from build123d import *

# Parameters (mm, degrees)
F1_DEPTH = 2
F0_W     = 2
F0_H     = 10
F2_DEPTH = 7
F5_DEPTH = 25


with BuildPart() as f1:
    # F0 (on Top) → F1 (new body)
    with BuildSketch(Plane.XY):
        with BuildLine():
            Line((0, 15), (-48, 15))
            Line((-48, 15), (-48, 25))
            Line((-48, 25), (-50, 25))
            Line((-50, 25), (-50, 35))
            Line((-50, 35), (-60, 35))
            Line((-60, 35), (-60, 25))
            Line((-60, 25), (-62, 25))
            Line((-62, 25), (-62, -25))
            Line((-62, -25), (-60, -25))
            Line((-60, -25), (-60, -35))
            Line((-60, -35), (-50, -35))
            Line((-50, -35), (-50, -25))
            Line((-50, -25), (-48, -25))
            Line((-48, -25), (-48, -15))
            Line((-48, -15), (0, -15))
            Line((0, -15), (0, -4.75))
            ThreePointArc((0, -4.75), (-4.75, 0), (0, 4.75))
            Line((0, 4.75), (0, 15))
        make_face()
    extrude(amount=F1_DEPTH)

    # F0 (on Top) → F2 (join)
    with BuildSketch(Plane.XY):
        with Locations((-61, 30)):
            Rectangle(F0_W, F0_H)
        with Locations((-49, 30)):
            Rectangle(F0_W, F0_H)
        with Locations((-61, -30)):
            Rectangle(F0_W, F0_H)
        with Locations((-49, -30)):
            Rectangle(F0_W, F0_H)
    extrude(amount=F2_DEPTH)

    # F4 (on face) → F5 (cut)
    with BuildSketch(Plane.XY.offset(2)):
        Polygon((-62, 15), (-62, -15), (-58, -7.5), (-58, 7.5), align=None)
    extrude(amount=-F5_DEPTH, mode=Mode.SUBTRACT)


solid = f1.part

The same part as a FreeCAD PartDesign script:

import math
import FreeCAD as App
import Part
import Sketcher

V = App.Vector
Q = App.Units.Quantity

doc = App.newDocument("Part")
body = doc.addObject("PartDesign::Body", "Body")

# Sketch on XY plane
sketch1 = doc.addObject("Sketcher::SketchObject", "Sketch")
body.addObject(sketch1)
sketch1.AttachmentSupport = (doc.XY_Plane, [""])
sketch1.MapMode = "FlatFace"
sketch1.addGeometry([
    Part.LineSegment(V(0, 15, 0), V(-48, 15, 0)),  # 0
    Part.LineSegment(V(-48, 15, 0), V(-48, 25, 0)),  # 1
    Part.LineSegment(V(-48, 25, 0), V(-50, 25, 0)),  # 2
    Part.LineSegment(V(-50, 25, 0), V(-50, 35, 0)),  # 3
    Part.LineSegment(V(-50, 35, 0), V(-60, 35, 0)),  # 4
    Part.LineSegment(V(-60, 35, 0), V(-60, 25, 0)),  # 5
    Part.LineSegment(V(-60, 25, 0), V(-62, 25, 0)),  # 6
    Part.LineSegment(V(-62, 25, 0), V(-62, -25, 0)),  # 7
    Part.LineSegment(V(-62, -25, 0), V(-60, -25, 0)),  # 8
    Part.LineSegment(V(-60, -25, 0), V(-60, -35, 0)),  # 9
    Part.LineSegment(V(-60, -35, 0), V(-50, -35, 0)),  # 10
    Part.LineSegment(V(-50, -35, 0), V(-50, -25, 0)),  # 11
    Part.LineSegment(V(-50, -25, 0), V(-48, -25, 0)),  # 12
    Part.LineSegment(V(-48, -25, 0), V(-48, -15, 0)),  # 13
    Part.LineSegment(V(-48, -15, 0), V(0, -15, 0)),  # 14
    Part.LineSegment(V(0, -15, 0), V(0, -4.8, 0)),  # 15
    Part.ArcOfCircle(Part.Circle(V(0, 0, 0), V(0, 0, 1), 4.8), math.radians(90), math.radians(270)),  # 16
    Part.LineSegment(V(0, 4.8, 0), V(0, 15, 0)),  # 17
], False)
sketch1.addConstraint([
    Sketcher.Constraint("Coincident", 0, 2, 1, 1),
    Sketcher.Constraint("Coincident", 1, 2, 2, 1),
    Sketcher.Constraint("Coincident", 2, 2, 3, 1),
    Sketcher.Constraint("Coincident", 3, 2, 4, 1),
    Sketcher.Constraint("Coincident", 4, 2, 5, 1),
    Sketcher.Constraint("Coincident", 5, 2, 6, 1),
    Sketcher.Constraint("Coincident", 6, 2, 7, 1),
    Sketcher.Constraint("Coincident", 7, 2, 8, 1),
    Sketcher.Constraint("Coincident", 8, 2, 9, 1),
    Sketcher.Constraint("Coincident", 9, 2, 10, 1),
    Sketcher.Constraint("Coincident", 10, 2, 11, 1),
    Sketcher.Constraint("Coincident", 11, 2, 12, 1),
    Sketcher.Constraint("Coincident", 12, 2, 13, 1),
    Sketcher.Constraint("Coincident", 13, 2, 14, 1),
    Sketcher.Constraint("Coincident", 14, 2, 15, 1),
    Sketcher.Constraint("Coincident", 15, 2, 16, 2),
    Sketcher.Constraint("Coincident", 16, 1, 17, 1),
    Sketcher.Constraint("Coincident", 17, 2, 0, 1),
    Sketcher.Constraint("Horizontal", 0),
    Sketcher.Constraint("Vertical", 1),
    Sketcher.Constraint("Horizontal", 2),
    Sketcher.Constraint("Vertical", 3),
    Sketcher.Constraint("Horizontal", 4),
    Sketcher.Constraint("Vertical", 5),
    Sketcher.Constraint("Horizontal", 6),
    Sketcher.Constraint("Vertical", 7),
    Sketcher.Constraint("Horizontal", 8),
    Sketcher.Constraint("Vertical", 9),
    Sketcher.Constraint("Horizontal", 10),
    Sketcher.Constraint("Vertical", 11),
    Sketcher.Constraint("Horizontal", 12),
    Sketcher.Constraint("Vertical", 13),
    Sketcher.Constraint("Horizontal", 14),
    Sketcher.Constraint("Vertical", 15),
    Sketcher.Constraint("Vertical", 17),
    Sketcher.Constraint("Coincident", 16, 3, -1, 1),
    Sketcher.Constraint("Symmetric", 14, 2, 17, 2, -1, 1),
    Sketcher.Constraint("Symmetric", 5, 2, 8, 2, -1),
    Sketcher.Constraint("Symmetric", 3, 2, 10, 2, -1),
    Sketcher.Constraint("Symmetric", 1, 2, 12, 2, -1),
    Sketcher.Constraint("PointOnObject", 14, 2, -2),
    Sketcher.Constraint("Horizontal", 2, 2, 5, 2),
    Sketcher.Constraint("Equal", 2, 6),
    Sketcher.Constraint("Equal", 10, 1),
    Sketcher.Constraint("Equal", 1, 3),
    Sketcher.Constraint("DistanceX", 0, 2, 0, 1, Q("48 mm")),
    Sketcher.Constraint("DistanceX", 2, 2, 2, 1, Q("2 mm")),
    Sketcher.Constraint("DistanceX", 4, 2, 4, 1, Q("10 mm")),
    Sketcher.Constraint("DistanceY", 7, 2, 7, 1, Q("50 mm")),
    Sketcher.Constraint("Radius", 16, Q("4.75 mm")),
])
pad1 = doc.addObject("PartDesign::Pad", "Pad")
body.addObject(pad1)
pad1.Profile = sketch1
pad1.Length = 2

# Sketch on XY plane
sketch2 = doc.addObject("Sketcher::SketchObject", "Sketch001")
body.addObject(sketch2)
sketch2.AttachmentSupport = (doc.XY_Plane, [""])
sketch2.MapMode = "FlatFace"
sketch2.addGeometry([
    Part.LineSegment(V(-62, 35, 0), V(-62, 25, 0)),  # 0
    Part.LineSegment(V(-62, 25, 0), V(-60, 25, 0)),  # 1
    Part.LineSegment(V(-60, 25, 0), V(-60, 35, 0)),  # 2
    Part.LineSegment(V(-60, 35, 0), V(-62, 35, 0)),  # 3
    Part.LineSegment(V(-50, 35, 0), V(-50, 25, 0)),  # 4
    Part.LineSegment(V(-50, 25, 0), V(-48, 25, 0)),  # 5
    Part.LineSegment(V(-48, 25, 0), V(-48, 35, 0)),  # 6
    Part.LineSegment(V(-48, 35, 0), V(-50, 35, 0)),  # 7
    Part.LineSegment(V(-62, -25, 0), V(-62, -35, 0)),  # 8
    Part.LineSegment(V(-62, -35, 0), V(-60, -35, 0)),  # 9
    Part.LineSegment(V(-60, -35, 0), V(-60, -25, 0)),  # 10
    Part.LineSegment(V(-60, -25, 0), V(-62, -25, 0)),  # 11
    Part.LineSegment(V(-50, -25, 0), V(-50, -35, 0)),  # 12
    Part.LineSegment(V(-50, -35, 0), V(-48, -35, 0)),  # 13
    Part.LineSegment(V(-48, -35, 0), V(-48, -25, 0)),  # 14
    Part.LineSegment(V(-48, -25, 0), V(-50, -25, 0)),  # 15
], False)
sketch2.addConstraint([
    Sketcher.Constraint("Coincident", 0, 2, 1, 1),
    Sketcher.Constraint("Coincident", 1, 2, 2, 1),
    Sketcher.Constraint("Coincident", 2, 2, 3, 1),
    Sketcher.Constraint("Coincident", 3, 2, 0, 1),
    Sketcher.Constraint("Coincident", 4, 2, 5, 1),
    Sketcher.Constraint("Coincident", 5, 2, 6, 1),
    Sketcher.Constraint("Coincident", 6, 2, 7, 1),
    Sketcher.Constraint("Coincident", 7, 2, 4, 1),
    Sketcher.Constraint("Coincident", 8, 2, 9, 1),
    Sketcher.Constraint("Coincident", 9, 2, 10, 1),
    Sketcher.Constraint("Coincident", 10, 2, 11, 1),
    Sketcher.Constraint("Coincident", 11, 2, 8, 1),
    Sketcher.Constraint("Coincident", 12, 2, 13, 1),
    Sketcher.Constraint("Coincident", 13, 2, 14, 1),
    Sketcher.Constraint("Coincident", 14, 2, 15, 1),
    Sketcher.Constraint("Coincident", 15, 2, 12, 1),
    Sketcher.Constraint("Vertical", 0),
    Sketcher.Constraint("Horizontal", 1),
    Sketcher.Constraint("Vertical", 2),
    Sketcher.Constraint("Horizontal", 3),
    Sketcher.Constraint("Vertical", 4),
    Sketcher.Constraint("Horizontal", 5),
    Sketcher.Constraint("Vertical", 6),
    Sketcher.Constraint("Horizontal", 7),
    Sketcher.Constraint("Vertical", 8),
    Sketcher.Constraint("Horizontal", 9),
    Sketcher.Constraint("Vertical", 10),
    Sketcher.Constraint("Horizontal", 11),
    Sketcher.Constraint("Vertical", 12),
    Sketcher.Constraint("Horizontal", 13),
    Sketcher.Constraint("Vertical", 14),
    Sketcher.Constraint("Horizontal", 15),
    Sketcher.Constraint("Symmetric", 3, 2, 8, 2, -1),
    Sketcher.Constraint("Symmetric", 1, 2, 10, 2, -1),
    Sketcher.Constraint("Symmetric", 7, 2, 12, 2, -1),
    Sketcher.Constraint("Symmetric", 5, 2, 14, 2, -1),
    Sketcher.Constraint("Horizontal", 1, 2, 4, 2),
    Sketcher.Constraint("Horizontal", 3, 2, 6, 2),
    Sketcher.Constraint("Equal", 3, 5),
    Sketcher.Constraint("DistanceX", 1, 1, 1, 2, Q("2 mm")),
    Sketcher.Constraint("DistanceY", 0, 2, 0, 1, Q("10 mm")),
    Sketcher.Constraint("DistanceX", 0, 2, -1, 1, Q("62 mm")),
    Sketcher.Constraint("DistanceY", -1, 1, 0, 2, Q("25 mm")),
    Sketcher.Constraint("DistanceX", 4, 2, -1, 1, Q("50 mm")),
])
pad2 = doc.addObject("PartDesign::Pad", "Pad001")
body.addObject(pad2)
pad2.Profile = sketch2
pad2.Length = 7

# Sketch on XY plane
sketch3 = doc.addObject("Sketcher::SketchObject", "Sketch002")
body.addObject(sketch3)
sketch3.AttachmentSupport = (doc.XY_Plane, [""])
sketch3.MapMode = "FlatFace"
sketch3.AttachmentOffset = App.Placement(V(0, 0, 2), App.Rotation())
sketch3.addGeometry([
    Part.LineSegment(V(-62, 15, 0), V(-62, -15, 0)),
    Part.LineSegment(V(-62, -15, 0), V(-58, -8, 0)),
    Part.LineSegment(V(-58, -8, 0), V(-58, 8, 0)),
    Part.LineSegment(V(-58, 8, 0), V(-62, 15, 0)),
], False)
sketch3.addConstraint([
    Sketcher.Constraint("Coincident", 0, 2, 1, 1),
    Sketcher.Constraint("Coincident", 1, 2, 2, 1),
    Sketcher.Constraint("Coincident", 2, 2, 3, 1),
    Sketcher.Constraint("Coincident", 3, 2, 0, 1),
    Sketcher.Constraint("Vertical", 0),
    Sketcher.Constraint("Vertical", 2),
    Sketcher.Constraint("Equal", 1, 3),
    Sketcher.Constraint("DistanceY", 0, 2, 0, 1, Q("30 mm")),
    Sketcher.Constraint("DistanceY", 2, 1, 2, 2, Q("15 mm")),
    Sketcher.Constraint("DistanceX", 0, 2, -1, 1, Q("62 mm")),
    Sketcher.Constraint("DistanceY", 0, 2, -1, 1, Q("15 mm")),
    Sketcher.Constraint("DistanceX", 1, 2, -1, 1, Q("58 mm")),
])
pocket1 = doc.addObject("PartDesign::Pocket", "Pocket")
body.addObject(pocket1)
pocket1.Profile = sketch3
pocket1.Length = 25

doc.recompute()
